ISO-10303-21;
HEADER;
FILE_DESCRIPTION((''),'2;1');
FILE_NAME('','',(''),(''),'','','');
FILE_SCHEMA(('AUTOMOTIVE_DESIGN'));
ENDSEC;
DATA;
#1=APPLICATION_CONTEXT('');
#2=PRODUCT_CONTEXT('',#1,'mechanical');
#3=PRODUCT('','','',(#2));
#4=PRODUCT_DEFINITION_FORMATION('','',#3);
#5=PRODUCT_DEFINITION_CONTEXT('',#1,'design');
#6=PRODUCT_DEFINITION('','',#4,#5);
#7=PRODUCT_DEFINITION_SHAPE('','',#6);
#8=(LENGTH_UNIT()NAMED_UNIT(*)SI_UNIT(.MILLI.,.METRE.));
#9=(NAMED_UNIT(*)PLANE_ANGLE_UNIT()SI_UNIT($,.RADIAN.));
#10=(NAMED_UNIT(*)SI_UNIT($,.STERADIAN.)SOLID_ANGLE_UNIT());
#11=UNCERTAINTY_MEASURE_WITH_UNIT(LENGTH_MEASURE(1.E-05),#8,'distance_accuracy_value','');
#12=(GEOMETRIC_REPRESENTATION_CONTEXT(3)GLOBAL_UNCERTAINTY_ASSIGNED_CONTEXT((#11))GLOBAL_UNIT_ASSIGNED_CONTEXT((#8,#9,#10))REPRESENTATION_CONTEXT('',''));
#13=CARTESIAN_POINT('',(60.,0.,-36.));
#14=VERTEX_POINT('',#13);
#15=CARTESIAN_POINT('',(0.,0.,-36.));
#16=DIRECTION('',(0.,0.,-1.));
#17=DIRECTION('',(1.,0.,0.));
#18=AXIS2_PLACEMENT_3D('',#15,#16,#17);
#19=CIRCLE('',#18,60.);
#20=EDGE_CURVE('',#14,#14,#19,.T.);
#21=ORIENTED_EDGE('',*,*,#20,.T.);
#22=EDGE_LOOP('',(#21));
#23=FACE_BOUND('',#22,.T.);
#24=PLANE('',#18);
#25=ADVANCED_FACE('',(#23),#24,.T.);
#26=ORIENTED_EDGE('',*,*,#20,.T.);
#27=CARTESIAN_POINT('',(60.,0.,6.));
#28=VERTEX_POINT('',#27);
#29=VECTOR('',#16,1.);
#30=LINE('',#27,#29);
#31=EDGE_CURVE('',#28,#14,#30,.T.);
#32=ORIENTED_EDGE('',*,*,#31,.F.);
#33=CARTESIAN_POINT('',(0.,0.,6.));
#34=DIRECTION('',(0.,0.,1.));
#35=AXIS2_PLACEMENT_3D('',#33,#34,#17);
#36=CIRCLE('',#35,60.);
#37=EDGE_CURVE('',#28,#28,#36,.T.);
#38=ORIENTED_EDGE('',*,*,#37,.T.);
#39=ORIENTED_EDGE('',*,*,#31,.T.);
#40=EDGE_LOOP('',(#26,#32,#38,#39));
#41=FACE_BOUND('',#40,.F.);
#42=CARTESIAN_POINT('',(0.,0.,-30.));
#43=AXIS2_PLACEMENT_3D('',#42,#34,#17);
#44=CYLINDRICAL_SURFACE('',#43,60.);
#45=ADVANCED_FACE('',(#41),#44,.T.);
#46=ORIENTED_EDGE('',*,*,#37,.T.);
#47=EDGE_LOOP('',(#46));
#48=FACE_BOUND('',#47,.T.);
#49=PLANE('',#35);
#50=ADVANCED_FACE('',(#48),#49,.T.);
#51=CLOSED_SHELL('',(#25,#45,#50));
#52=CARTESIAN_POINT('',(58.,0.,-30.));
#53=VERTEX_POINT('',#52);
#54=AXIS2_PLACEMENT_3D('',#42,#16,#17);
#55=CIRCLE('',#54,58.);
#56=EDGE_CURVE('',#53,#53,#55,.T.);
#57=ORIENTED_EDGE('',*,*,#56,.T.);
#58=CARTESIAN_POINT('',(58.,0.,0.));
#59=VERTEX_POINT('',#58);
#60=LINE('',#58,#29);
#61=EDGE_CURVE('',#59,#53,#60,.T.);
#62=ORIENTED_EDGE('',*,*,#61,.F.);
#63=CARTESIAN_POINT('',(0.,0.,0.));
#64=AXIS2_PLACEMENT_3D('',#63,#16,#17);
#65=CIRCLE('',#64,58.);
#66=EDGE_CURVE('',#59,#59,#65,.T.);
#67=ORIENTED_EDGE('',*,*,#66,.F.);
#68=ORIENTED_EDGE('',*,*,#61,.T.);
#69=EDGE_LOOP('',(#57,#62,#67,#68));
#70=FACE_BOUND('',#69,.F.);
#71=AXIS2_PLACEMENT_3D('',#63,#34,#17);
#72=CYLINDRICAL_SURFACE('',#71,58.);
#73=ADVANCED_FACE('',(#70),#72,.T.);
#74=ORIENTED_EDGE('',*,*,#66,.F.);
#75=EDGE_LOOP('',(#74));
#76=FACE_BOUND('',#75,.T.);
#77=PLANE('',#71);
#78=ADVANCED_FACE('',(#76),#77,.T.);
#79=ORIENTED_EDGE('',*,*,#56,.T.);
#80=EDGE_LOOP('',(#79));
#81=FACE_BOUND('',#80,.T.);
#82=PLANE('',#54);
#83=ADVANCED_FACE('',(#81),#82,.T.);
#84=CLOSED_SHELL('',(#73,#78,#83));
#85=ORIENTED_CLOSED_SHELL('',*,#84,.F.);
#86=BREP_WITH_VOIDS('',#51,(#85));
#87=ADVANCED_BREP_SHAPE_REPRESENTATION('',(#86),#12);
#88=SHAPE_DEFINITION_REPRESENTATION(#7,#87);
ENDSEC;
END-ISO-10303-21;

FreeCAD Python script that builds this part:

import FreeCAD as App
import Part
import Sketcher
from FreeCAD import Vector

doc = App.newDocument("Part")
body = doc.addObject("PartDesign::Body", "Body")

# Sketch on XY plane
sketch1 = body.newObject("Sketcher::SketchObject", "Sketch")
sketch1.AttachmentSupport = (doc.getObject("XY_Plane"), [""])
sketch1.MapMode = "FlatFace"
sketch1.addGeometry(Part.Circle(Vector(0, 0, 0), Vector(0, 0, 1), 60), False)
sketch1.addConstraint([
    Sketcher.Constraint("Coincident", 0, 3, -1, 1),
    Sketcher.Constraint("Diameter", 0, 120.0),
])
pad1 = body.newObject("PartDesign::Pad", "Pad")
pad1.Profile = sketch1
pad1.Length = 6

# Sketch on XY plane
sketch2 = body.newObject("Sketcher::SketchObject", "Sketch001")
sketch2.AttachmentSupport = (doc.getObject("XY_Plane"), [""])
sketch2.MapMode = "FlatFace"
sketch2.addGeometry([
    Part.Circle(Vector(0, 0, 0), Vector(0, 0, 1), 60),
    Part.Circle(Vector(0, 0, 0), Vector(0, 0, 1), 58),
], False)
sketch2.addConstraint([
    Sketcher.Constraint("Coincident", 0, 3, -1, 1),
    Sketcher.Constraint("Coincident", 1, 3, -1, 1),
    Sketcher.Constraint("Diameter", 0, 120.0),
    Sketcher.Constraint("Diameter", 1, 116.0),
])
pad2 = body.newObject("PartDesign::Pad", "Pad001")
pad2.Profile = sketch2
pad2.Length = 30
pad2.Reversed = True

# Sketch on XY plane
sketch3 = body.newObject("Sketcher::SketchObject", "Sketch002")
sketch3.AttachmentSupport = (doc.getObject("XY_Plane"), [""])
sketch3.MapMode = "FlatFace"
sketch3.AttachmentOffset = App.Placement(Vector(0, 0, -30), App.Rotation())
sketch3.addGeometry(Part.Circle(Vector(0, 0, 0), Vector(0, 0, 1), 60), False)
sketch3.addConstraint([
    Sketcher.Constraint("Coincident", 0, 3, -1, 1),
    Sketcher.Constraint("Diameter", 0, 120.0),
])
pad3 = body.newObject("PartDesign::Pad", "Pad002")
pad3.Profile = sketch3
pad3.Length = 6
pad3.Reversed = True

doc.recompute()
